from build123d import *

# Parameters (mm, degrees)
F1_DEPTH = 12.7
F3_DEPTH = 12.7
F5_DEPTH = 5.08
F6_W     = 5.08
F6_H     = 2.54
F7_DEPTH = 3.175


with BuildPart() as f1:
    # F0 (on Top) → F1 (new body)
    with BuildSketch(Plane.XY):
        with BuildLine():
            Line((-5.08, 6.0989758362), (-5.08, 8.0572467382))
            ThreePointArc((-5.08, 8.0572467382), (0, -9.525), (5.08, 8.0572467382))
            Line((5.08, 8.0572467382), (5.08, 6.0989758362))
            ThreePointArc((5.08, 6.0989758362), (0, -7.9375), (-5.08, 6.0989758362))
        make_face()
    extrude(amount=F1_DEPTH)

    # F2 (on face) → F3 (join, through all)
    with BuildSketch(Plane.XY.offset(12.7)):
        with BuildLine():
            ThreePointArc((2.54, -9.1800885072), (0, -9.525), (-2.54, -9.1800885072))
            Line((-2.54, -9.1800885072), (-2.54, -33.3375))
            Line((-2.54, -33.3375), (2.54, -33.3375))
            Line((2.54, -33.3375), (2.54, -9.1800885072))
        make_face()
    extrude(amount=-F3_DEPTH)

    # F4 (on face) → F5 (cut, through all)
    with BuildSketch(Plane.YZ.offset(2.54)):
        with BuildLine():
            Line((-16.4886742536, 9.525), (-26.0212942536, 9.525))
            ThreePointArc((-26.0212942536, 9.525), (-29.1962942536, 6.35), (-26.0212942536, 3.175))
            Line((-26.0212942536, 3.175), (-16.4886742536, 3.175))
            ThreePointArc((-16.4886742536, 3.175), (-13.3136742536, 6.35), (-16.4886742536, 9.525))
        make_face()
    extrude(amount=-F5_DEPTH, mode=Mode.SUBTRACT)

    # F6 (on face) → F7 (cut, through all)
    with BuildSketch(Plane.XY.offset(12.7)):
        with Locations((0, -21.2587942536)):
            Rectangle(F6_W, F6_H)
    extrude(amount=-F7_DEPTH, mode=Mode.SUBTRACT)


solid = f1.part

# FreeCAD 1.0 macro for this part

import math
import FreeCAD as App
import Part
import Sketcher
from FreeCAD import Vector
Q = App.Units.Quantity

doc = App.newDocument("Part")
body = doc.addObject("PartDesign::Body", "Body")

# Sketch on XY plane
sketch1 = body.newObject("Sketcher::SketchObject", "Sketch")
sketch1.AttachmentSupport = (doc.getObject("XY_Plane"), [""])
sketch1.MapMode = "FlatFace"
sketch1.addGeometry([
    Part.LineSegment(Vector(-5.08, 6.098976, 0), Vector(-5.08, 8.057247, 0)),
    Part.ArcOfCircle(Part.Circle(Vector(0, 0, 0), Vector(0, 0, 1), 9.525), math.radians(122.230953), math.radians(417.769047)),
    Part.LineSegment(Vector(5.08, 8.057247, 0), Vector(5.08, 6.098976, 0)),
    Part.ArcOfCircle(Part.Circle(Vector(0, 0, 0), Vector(0, 0, 1), 7.9375), math.radians(129.79182), math.radians(410.20818)),
], False)
sketch1.addConstraint([
    Sketcher.Constraint("Coincident", 0, 2, 1, 1),
    Sketcher.Constraint("Coincident", 1, 2, 2, 1),
    Sketcher.Constraint("Coincident", 2, 2, 3, 2),
    Sketcher.Constraint("Coincident", 3, 1, 0, 1),
    Sketcher.Constraint("Vertical", 0),
    Sketcher.Constraint("Vertical", 2),
    Sketcher.Constraint("Coincident", 1, 3, -1, 1),
    Sketcher.Constraint("Coincident", 3, 3, -1, 1),
    Sketcher.Constraint("Horizontal", 0, 2, 1, 2),
    Sketcher.Constraint("Radius", 1, Q("0.375 in")),
    Sketcher.Constraint("Radius", 3, Q("0.3125 in")),
    Sketcher.Constraint("DistanceX", 0, 2, -1, 1, Q("0.2 in")),
])
pad1 = body.newObject("PartDesign::Pad", "Pad")
pad1.Profile = sketch1
pad1.Length = Q("0.5 in")

# Sketch on XY plane
sketch2 = body.newObject("Sketcher::SketchObject", "Sketch001")
sketch2.AttachmentSupport = (doc.getObject("XY_Plane"), [""])
sketch2.MapMode = "FlatFace"
sketch2.AttachmentOffset = App.Placement(Vector(0, 0, 0.5 * 25.4), App.Rotation())
sketch2.addGeometry([
    Part.ArcOfCircle(Part.Circle(Vector(0, 0, 0), Vector(0, 0, 1), 9.525), math.radians(-105.46601), math.radians(-74.53399)),
    Part.LineSegment(Vector(-2.54, -9.180089, 0), Vector(-2.54, -33.3375, 0)),
    Part.LineSegment(Vector(-2.54, -33.3375, 0), Vector(2.54, -33.3375, 0)),
    Part.LineSegment(Vector(2.54, -33.3375, 0), Vector(2.54, -9.180089, 0)),
], False)
sketch2.addConstraint([
    Sketcher.Constraint("Coincident", 0, 1, 1, 1),
    Sketcher.Constraint("Coincident", 1, 2, 2, 1),
    Sketcher.Constraint("Coincident", 2, 2, 3, 1),
    Sketcher.Constraint("Coincident", 3, 2, 0, 2),
    Sketcher.Constraint("Vertical", 1),
    Sketcher.Constraint("Horizontal", 2),
    Sketcher.Constraint("Vertical", 3),
    Sketcher.Constraint("Coincident", 0, 3, -1, 1),
    Sketcher.Constraint("Horizontal", 0, 1, 3, 2),
    Sketcher.Constraint("DistanceX", 2, 1, 2, 2, Q("0.2 in")),
    Sketcher.Constraint("Radius", 0, Q("0.375 in")),
    Sketcher.Constraint("DistanceY", 1, 2, -1, 1, Q("1.3125 in")),
])
pad2 = body.newObject("PartDesign::Pad", "Pad001")
pad2.Profile = sketch2
pad2.Length = Q("0.5 in")
pad2.Reversed = True

# Sketch on YZ plane
sketch3 = body.newObject("Sketcher::SketchObject", "Sketch002")
sketch3.AttachmentSupport = (doc.getObject("YZ_Plane"), [""])
sketch3.MapMode = "FlatFace"
sketch3.AttachmentOffset = App.Placement(Vector(0, 0, 0.1 * 25.4), App.Rotation())
sketch3.addGeometry([
    Part.LineSegment(Vector(-16.488674, 9.525, 0), Vector(-26.021294, 9.525, 0)),
    Part.ArcOfCircle(Part.Circle(Vector(-26.021294, 6.35, 0), Vector(0, 0, 1), 3.175), math.radians(90), math.radians(270)),
    Part.LineSegment(Vector(-26.021294, 3.175, 0), Vector(-16.488674, 3.175, 0)),
    Part.ArcOfCircle(Part.Circle(Vector(-16.488674, 6.35, 0), Vector(0, 0, 1), 3.175), math.radians(-90), math.radians(90)),
], False)
sketch3.addConstraint([
    Sketcher.Constraint("Tangent", 0, 2, 1, 1),
    Sketcher.Constraint("Tangent", 1, 2, 2, 1),
    Sketcher.Constraint("Tangent", 2, 2, 3, 1),
    Sketcher.Constraint("Tangent", 3, 2, 0, 1),
    Sketcher.Constraint("Horizontal", 0),
    Sketcher.Constraint("Horizontal", 2),
    Sketcher.Constraint("Radius", 1, Q("0.125 in")),
    Sketcher.Constraint("DistanceY", -1, 1, 1, 3, Q("0.25 in")),
    Sketcher.Constraint("DistanceX", 0, 2, 0, 1, Q("0.3753 in")),
    Sketcher.Constraint("DistanceX", 1, 3, -1, 1, 26.021294),
])
pocket1 = body.newObject("PartDesign::Pocket", "Pocket")
pocket1.Profile = sketch3
pocket1.Type = "ThroughAll"

# Sketch on XY plane
sketch4 = body.newObject("Sketcher::SketchObject", "Sketch003")
sketch4.AttachmentSupport = (doc.getObject("XY_Plane"), [""])
sketch4.MapMode = "FlatFace"
sketch4.AttachmentOffset = App.Placement(Vector(0, 0, 0.5 * 25.4), App.Rotation())
sketch4.addGeometry([
    Part.LineSegment(Vector(-2.54, -19.988794, 0), Vector(-2.54, -22.528794, 0)),
    Part.LineSegment(Vector(-2.54, -22.528794, 0), Vector(2.54, -22.528794, 0)),
    Part.LineSegment(Vector(2.54, -22.528794, 0), Vector(2.54, -19.988794, 0)),
    Part.LineSegment(Vector(2.54, -19.988794, 0), Vector(-2.54, -19.988794, 0)),
], False)
sketch4.addConstraint([
    Sketcher.Constraint("Coincident", 0, 2, 1, 1),
    Sketcher.Constraint("Coincident", 1, 2, 2, 1),
    Sketcher.Constraint("Coincident", 2, 2, 3, 1),
    Sketcher.Constraint("Coincident", 3, 2, 0, 1),
    Sketcher.Constraint("Vertical", 0),
    Sketcher.Constraint("Horizontal", 1),
    Sketcher.Constraint("Vertical", 2),
    Sketcher.Constraint("Horizontal", 3),
    Sketcher.Constraint("DistanceX", 1, 1, 1, 2, Q("0.2 in")),
    Sketcher.Constraint("DistanceY", 0, 2, 0, 1, Q("0.1 in")),
    Sketcher.Constraint("DistanceX", 0, 2, -1, 1, Q("0.1 in")),
    Sketcher.Constraint("DistanceY", 0, 2, -1, 1, 22.528794),
])
pocket2 = body.newObject("PartDesign::Pocket", "Pocket001")
pocket2.Profile = sketch4
pocket2.Length = Q("0.125 in")

doc.recompute()
